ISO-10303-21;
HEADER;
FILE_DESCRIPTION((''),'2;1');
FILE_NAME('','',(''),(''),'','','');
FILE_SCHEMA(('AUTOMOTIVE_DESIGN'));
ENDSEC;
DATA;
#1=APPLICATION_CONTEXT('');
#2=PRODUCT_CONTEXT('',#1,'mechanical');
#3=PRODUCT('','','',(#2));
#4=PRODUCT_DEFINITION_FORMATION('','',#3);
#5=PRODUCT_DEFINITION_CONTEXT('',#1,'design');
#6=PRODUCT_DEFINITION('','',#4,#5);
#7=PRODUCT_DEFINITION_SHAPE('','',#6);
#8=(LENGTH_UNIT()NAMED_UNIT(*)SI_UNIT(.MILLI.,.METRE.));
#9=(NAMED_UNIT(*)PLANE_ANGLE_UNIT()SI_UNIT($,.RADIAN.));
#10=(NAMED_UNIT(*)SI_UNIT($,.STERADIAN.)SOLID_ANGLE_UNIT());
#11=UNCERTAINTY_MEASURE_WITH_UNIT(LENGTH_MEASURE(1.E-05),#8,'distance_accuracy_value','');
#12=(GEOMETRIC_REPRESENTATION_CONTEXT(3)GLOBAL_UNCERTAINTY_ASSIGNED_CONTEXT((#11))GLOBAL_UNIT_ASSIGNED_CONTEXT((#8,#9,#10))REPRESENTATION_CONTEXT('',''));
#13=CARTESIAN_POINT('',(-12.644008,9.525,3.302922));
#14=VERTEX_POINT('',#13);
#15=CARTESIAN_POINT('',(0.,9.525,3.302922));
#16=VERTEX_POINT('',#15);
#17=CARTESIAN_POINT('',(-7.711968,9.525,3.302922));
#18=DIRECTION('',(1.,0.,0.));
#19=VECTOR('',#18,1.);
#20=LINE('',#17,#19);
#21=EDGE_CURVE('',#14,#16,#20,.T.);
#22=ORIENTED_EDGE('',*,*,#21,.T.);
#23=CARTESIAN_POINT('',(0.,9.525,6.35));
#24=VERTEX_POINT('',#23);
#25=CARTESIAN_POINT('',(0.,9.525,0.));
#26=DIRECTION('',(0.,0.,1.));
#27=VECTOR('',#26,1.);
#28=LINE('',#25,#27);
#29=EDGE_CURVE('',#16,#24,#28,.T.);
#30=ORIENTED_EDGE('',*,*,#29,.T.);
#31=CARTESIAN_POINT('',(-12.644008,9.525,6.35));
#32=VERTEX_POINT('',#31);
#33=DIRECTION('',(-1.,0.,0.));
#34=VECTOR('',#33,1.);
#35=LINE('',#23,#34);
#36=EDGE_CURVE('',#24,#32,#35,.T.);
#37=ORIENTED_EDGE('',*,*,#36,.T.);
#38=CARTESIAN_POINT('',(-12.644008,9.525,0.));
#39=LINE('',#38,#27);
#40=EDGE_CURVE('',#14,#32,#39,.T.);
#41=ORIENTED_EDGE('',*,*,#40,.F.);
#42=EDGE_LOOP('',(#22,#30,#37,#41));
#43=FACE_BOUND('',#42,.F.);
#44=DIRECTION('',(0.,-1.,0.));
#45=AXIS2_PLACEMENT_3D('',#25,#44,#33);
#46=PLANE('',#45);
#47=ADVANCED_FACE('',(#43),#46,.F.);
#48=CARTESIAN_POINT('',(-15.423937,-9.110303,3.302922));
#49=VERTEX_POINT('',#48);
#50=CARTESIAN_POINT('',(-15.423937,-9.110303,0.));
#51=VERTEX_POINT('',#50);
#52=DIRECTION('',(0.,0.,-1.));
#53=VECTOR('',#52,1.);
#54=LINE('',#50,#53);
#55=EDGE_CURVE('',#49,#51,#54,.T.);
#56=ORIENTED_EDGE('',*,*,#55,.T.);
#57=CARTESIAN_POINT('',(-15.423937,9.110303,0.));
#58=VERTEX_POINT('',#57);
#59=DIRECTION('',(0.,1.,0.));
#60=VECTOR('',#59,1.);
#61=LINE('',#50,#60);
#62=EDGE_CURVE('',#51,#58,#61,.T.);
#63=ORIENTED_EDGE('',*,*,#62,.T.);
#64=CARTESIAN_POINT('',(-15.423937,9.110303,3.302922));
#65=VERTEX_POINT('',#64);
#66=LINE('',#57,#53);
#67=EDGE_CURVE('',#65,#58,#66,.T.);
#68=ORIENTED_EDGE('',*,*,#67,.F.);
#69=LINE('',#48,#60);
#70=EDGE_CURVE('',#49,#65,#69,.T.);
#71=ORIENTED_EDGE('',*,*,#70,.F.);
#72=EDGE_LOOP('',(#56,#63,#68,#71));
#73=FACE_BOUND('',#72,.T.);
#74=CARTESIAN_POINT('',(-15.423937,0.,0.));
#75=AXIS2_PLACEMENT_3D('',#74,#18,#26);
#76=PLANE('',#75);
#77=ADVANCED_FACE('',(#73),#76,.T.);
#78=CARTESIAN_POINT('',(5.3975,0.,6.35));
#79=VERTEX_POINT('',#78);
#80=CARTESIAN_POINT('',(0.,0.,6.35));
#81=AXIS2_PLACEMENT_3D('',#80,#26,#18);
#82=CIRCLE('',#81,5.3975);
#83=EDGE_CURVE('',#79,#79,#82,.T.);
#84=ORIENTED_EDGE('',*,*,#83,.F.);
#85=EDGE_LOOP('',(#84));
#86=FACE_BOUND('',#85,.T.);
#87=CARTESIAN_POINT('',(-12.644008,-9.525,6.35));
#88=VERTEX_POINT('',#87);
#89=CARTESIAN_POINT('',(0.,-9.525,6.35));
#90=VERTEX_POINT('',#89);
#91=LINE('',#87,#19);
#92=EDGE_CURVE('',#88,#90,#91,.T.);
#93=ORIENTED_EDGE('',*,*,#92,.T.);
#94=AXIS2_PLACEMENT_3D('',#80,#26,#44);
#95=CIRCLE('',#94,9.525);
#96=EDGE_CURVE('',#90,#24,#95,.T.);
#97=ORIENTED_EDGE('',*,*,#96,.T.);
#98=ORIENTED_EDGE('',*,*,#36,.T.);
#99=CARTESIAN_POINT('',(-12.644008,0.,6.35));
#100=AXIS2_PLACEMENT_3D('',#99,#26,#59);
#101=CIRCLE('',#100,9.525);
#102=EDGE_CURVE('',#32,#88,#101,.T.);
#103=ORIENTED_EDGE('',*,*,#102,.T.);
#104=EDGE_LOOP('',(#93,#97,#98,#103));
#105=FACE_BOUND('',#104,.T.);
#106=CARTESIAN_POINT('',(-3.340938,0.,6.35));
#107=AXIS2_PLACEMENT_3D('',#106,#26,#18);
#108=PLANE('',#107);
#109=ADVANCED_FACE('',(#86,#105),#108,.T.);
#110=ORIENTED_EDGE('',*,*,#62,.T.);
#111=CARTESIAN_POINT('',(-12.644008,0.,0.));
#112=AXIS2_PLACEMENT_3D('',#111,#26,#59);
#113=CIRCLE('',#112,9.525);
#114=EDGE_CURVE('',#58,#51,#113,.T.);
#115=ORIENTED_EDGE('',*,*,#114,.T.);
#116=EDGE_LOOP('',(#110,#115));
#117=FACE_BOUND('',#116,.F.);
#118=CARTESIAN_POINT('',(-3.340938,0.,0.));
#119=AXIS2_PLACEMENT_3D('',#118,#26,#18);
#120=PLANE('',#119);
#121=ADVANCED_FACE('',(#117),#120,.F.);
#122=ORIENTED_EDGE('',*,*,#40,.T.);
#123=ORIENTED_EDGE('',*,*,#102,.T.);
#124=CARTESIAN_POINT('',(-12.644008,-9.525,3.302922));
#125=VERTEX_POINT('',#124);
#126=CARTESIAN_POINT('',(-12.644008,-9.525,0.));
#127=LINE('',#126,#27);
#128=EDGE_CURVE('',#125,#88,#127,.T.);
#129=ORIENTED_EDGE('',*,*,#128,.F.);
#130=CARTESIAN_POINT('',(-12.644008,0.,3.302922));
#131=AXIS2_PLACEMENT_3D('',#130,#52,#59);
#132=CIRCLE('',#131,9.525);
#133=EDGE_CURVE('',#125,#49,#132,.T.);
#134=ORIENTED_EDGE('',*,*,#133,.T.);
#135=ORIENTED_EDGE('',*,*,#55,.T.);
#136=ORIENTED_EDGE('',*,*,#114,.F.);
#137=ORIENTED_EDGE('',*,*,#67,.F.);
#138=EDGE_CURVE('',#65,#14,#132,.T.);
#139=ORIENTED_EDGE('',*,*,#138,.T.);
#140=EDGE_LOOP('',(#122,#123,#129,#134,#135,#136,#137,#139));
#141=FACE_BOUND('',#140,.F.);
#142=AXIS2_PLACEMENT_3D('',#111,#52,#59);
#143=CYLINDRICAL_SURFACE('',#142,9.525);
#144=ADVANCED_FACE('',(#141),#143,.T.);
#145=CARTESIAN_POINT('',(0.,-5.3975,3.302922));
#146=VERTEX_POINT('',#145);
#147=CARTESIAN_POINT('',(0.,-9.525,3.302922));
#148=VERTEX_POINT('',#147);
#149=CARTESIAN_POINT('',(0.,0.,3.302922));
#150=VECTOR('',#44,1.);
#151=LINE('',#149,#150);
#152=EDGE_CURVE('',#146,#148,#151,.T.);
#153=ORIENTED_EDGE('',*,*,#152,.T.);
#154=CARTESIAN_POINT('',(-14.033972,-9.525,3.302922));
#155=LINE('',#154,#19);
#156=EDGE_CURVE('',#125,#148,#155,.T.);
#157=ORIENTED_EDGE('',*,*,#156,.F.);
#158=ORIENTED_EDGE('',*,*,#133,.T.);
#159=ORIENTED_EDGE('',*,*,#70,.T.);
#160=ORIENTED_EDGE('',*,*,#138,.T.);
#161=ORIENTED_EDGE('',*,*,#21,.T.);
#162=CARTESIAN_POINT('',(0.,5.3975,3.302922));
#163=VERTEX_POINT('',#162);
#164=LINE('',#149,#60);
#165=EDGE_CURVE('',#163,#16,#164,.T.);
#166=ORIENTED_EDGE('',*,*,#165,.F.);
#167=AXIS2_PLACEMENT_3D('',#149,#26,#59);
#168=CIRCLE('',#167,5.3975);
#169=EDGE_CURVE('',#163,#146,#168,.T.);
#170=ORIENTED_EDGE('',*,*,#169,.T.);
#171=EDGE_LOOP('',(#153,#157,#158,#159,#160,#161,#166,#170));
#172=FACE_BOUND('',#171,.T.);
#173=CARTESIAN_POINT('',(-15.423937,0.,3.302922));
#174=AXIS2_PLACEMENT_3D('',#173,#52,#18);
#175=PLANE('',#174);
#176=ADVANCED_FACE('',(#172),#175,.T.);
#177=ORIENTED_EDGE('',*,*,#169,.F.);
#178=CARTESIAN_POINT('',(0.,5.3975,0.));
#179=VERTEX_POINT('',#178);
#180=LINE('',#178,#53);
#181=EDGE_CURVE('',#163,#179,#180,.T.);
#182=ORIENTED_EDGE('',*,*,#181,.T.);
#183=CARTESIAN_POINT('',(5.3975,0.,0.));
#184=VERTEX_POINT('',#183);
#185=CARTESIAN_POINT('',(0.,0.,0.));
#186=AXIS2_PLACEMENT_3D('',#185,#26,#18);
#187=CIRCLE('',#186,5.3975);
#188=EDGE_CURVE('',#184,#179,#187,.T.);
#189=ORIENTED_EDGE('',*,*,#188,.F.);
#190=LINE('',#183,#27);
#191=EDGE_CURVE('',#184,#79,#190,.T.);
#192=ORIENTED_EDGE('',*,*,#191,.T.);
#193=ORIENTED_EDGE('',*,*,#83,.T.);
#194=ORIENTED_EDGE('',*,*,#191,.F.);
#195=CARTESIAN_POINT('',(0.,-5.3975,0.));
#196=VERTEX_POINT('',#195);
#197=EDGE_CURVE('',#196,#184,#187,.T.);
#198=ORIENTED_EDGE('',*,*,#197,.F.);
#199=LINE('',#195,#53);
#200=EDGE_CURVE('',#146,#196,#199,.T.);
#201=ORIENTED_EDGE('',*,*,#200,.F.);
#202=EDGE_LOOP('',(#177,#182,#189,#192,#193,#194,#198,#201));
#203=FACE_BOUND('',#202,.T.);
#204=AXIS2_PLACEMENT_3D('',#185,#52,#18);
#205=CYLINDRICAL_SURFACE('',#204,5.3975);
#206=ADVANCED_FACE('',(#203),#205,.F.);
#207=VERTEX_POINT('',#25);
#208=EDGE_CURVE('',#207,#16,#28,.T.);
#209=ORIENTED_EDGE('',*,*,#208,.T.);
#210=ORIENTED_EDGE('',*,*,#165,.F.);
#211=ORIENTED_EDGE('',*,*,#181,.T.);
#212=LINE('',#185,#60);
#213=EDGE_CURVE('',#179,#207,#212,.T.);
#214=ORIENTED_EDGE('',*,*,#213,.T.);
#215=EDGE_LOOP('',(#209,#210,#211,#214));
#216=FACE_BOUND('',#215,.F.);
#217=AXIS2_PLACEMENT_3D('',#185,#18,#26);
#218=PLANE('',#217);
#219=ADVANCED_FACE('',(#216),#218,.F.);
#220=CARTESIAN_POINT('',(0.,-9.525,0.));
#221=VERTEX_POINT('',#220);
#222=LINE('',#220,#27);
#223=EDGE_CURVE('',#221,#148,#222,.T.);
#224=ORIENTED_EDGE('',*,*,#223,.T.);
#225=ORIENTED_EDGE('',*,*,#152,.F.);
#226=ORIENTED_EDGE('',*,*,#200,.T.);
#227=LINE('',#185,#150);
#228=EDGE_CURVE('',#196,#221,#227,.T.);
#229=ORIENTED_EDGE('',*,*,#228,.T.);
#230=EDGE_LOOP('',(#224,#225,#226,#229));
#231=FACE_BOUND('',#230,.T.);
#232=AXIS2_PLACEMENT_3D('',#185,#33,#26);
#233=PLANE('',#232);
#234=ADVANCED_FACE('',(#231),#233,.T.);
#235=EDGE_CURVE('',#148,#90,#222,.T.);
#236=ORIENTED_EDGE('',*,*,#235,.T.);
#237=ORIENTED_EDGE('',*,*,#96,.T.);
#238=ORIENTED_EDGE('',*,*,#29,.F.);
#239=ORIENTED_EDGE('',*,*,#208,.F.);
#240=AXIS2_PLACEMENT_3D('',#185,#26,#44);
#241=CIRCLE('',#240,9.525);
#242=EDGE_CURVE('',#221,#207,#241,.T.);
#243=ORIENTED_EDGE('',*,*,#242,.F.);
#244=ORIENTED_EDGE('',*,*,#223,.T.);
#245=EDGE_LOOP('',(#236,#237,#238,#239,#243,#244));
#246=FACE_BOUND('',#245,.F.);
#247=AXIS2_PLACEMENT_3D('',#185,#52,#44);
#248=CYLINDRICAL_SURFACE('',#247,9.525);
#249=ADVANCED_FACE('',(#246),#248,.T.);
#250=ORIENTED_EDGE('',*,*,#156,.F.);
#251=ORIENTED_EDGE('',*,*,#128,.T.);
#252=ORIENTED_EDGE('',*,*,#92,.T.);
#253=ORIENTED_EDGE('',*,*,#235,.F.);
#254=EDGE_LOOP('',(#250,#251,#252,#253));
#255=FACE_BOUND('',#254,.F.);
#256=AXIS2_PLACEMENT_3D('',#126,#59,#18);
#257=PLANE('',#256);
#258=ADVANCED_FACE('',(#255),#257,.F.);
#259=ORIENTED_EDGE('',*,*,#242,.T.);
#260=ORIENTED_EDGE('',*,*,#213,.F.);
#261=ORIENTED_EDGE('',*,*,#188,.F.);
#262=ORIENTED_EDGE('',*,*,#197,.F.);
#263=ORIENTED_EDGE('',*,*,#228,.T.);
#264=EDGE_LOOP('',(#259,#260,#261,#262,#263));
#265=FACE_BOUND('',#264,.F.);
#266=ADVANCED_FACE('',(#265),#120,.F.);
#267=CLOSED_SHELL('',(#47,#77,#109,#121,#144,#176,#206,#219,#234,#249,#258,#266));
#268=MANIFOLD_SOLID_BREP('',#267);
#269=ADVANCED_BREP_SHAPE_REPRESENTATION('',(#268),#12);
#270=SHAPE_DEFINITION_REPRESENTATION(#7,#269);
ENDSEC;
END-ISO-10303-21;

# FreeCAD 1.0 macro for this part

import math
import FreeCAD as App
import Part
import Sketcher

V = App.Vector
Q = App.Units.Quantity


def add_polygon(sketch, points):
    """Adds a closed chain of lines whose ends are joined by coincident constraints."""
    first, n = sketch.GeometryCount, len(points)
    for a, b in zip(points, points[1:] + points[:1]):
        sketch.addGeometry(Part.LineSegment(App.Vector(*a, 0), App.Vector(*b, 0)), False)
    for i in range(n):
        sketch.addConstraint(Sketcher.Constraint("Coincident", first + i, 2, first + (i + 1) % n, 1))

doc = App.newDocument("Part")
params = doc.addObject("Spreadsheet::Sheet", "Params")
for row, (alias, value) in enumerate([
    ("sketch1_diameter", "0.425 in"),
    ("sketch1_radius", "0.375 in"),
    ("pad1_length", "0.25 in"),
], start=1):
    params.set(f"A{row}", alias)
    params.set(f"B{row}", "=" + value)
    params.setAlias(f"B{row}", alias)

body = doc.addObject("PartDesign::Body", "Body")

sketch1 = doc.addObject("Sketcher::SketchObject", "Sketch")
body.addObject(sketch1)
sketch1.AttachmentSupport = (doc.XY_Plane, [""])
sketch1.MapMode = "FlatFace"
sketch1.addGeometry(Part.LineSegment(V(0, 10, 0), V(-13, 10, 0)), False)
sketch1.addGeometry(Part.ArcOfCircle(Part.Circle(V(-13, 0, 0), V(0, 0, 1), 10), math.radians(90), math.radians(270)), False)
sketch1.addGeometry(Part.LineSegment(V(-13, -10, 0), V(0, -10, 0)), False)
sketch1.addGeometry(Part.ArcOfCircle(Part.Circle(V(0, 0, 0), V(0, 0, 1), 10), math.radians(-90), math.radians(90)), False)
sketch1.addGeometry(Part.Circle(V(0, 0, 0), V(0, 0, 1), 5), False)
sketch1.addConstraint(Sketcher.Constraint("Tangent", 0, 2, 1, 1))
sketch1.addConstraint(Sketcher.Constraint("Tangent", 1, 2, 2, 1))
sketch1.addConstraint(Sketcher.Constraint("Tangent", 2, 2, 3, 1))
sketch1.addConstraint(Sketcher.Constraint("Tangent", 3, 2, 0, 1))
sketch1.addConstraint(Sketcher.Constraint("Horizontal", 0))
sketch1.addConstraint(Sketcher.Constraint("Horizontal", 2))
sketch1.addConstraint(Sketcher.Constraint("Coincident", 3, 3, -1, 1))
sketch1.addConstraint(Sketcher.Constraint("Coincident", 4, 3, -1, 1))
sketch1.addConstraint(Sketcher.Constraint("Diameter", 4, Q("0.425 in")))
sketch1.addConstraint(Sketcher.Constraint("Radius", 1, Q("0.375 in")))
sketch1.addConstraint(Sketcher.Constraint("DistanceX", 0, 2, 0, 1, 12.644008))
sketch1.setExpression("Constraints[8]", "Params.sketch1_diameter")
sketch1.setExpression("Constraints[9]", "Params.sketch1_radius")
pad1 = doc.addObject("PartDesign::Pad", "Pad")
body.addObject(pad1)
pad1.Profile = sketch1
pad1.setExpression("Length", "Params.pad1_length")

sketch2 = doc.addObject("Sketcher::SketchObject", "Sketch001")
body.addObject(sketch2)
sketch2.AttachmentSupport = (doc.XZ_Plane, [""])
sketch2.MapMode = "FlatFace"
add_polygon(sketch2, [(-15.4, 3.3), (-15.4, 0), (0, 0), (0, 3.3)])
sketch2.addConstraint(Sketcher.Constraint("Vertical", 0))
sketch2.addConstraint(Sketcher.Constraint("Horizontal", 1))
sketch2.addConstraint(Sketcher.Constraint("Vertical", 2))
sketch2.addConstraint(Sketcher.Constraint("Horizontal", 3))
sketch2.addConstraint(Sketcher.Constraint("Coincident", 1, 2, -1, 1))
sketch2.addConstraint(Sketcher.Constraint("DistanceY", 0, 2, 0, 1, 3.302922))
sketch2.addConstraint(Sketcher.Constraint("DistanceX", 1, 1, 1, 2, 15.423937))
pocket1 = doc.addObject("PartDesign::Pocket", "Pocket")
body.addObject(pocket1)
pocket1.Profile = sketch2
pocket1.Type = "ThroughAll"
pocket1.Midplane = True

doc.recompute()
